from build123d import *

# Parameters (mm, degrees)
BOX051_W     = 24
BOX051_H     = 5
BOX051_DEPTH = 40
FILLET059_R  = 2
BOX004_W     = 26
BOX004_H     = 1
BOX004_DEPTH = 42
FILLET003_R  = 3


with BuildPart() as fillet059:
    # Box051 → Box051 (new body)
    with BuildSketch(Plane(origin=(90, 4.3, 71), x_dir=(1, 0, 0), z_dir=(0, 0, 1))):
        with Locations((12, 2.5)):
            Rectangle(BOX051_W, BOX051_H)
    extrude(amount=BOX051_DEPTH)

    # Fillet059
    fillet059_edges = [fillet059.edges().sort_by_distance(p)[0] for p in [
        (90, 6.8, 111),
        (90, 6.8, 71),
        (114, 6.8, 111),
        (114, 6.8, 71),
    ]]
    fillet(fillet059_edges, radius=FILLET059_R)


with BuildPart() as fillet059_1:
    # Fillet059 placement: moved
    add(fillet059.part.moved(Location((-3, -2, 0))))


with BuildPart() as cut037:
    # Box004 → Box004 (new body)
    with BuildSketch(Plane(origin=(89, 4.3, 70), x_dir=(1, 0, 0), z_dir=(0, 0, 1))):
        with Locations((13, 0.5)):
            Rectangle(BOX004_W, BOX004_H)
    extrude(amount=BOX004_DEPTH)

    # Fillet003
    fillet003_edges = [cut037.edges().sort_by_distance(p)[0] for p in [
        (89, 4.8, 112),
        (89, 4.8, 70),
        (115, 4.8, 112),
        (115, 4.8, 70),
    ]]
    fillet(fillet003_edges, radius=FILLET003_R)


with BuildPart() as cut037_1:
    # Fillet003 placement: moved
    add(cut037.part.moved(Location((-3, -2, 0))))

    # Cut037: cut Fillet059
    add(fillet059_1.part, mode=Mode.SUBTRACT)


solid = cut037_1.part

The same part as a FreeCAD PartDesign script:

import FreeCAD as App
import Part
import Sketcher

V = App.Vector
Q = App.Units.Quantity


def edges_at(feature, points):
    """Names of the edges that pass closest to the given points."""
    edges = feature.Shape.Edges
    near = lambda p: min(range(len(edges)), key=lambda i: edges[i].distToShape(Part.Vertex(*p))[0])
    return sorted({f"Edge{near(p) + 1}" for p in points})


def add_polygon(sketch, points):
    """Adds a closed chain of lines whose ends are joined by coincident constraints."""
    first, n = sketch.GeometryCount, len(points)
    for a, b in zip(points, points[1:] + points[:1]):
        sketch.addGeometry(Part.LineSegment(App.Vector(*a, 0), App.Vector(*b, 0)), False)
    for i in range(n):
        sketch.addConstraint(Sketcher.Constraint("Coincident", first + i, 2, first + (i + 1) % n, 1))

doc = App.newDocument("Part")
body = doc.addObject("PartDesign::Body", "Body")

# Sketch on XY plane
sketch1 = body.newObject("Sketcher::SketchObject", "Sketch")
sketch1.AttachmentSupport = (doc.getObject("XY_Plane"), [""])
sketch1.MapMode = "FlatFace"
sketch1.AttachmentOffset = App.Placement(V(0, 0, 71), App.Rotation())
add_polygon(sketch1, [(90, 9), (90, 4), (114, 4), (114, 9)])  # lines 0-3
sketch1.addConstraint([
    Sketcher.Constraint("Vertical", 0),
    Sketcher.Constraint("Horizontal", 1),
    Sketcher.Constraint("Vertical", 2),
    Sketcher.Constraint("Horizontal", 3),
    Sketcher.Constraint("DistanceX", 1, 1, 1, 2, Q("24 mm")),
    Sketcher.Constraint("DistanceY", 0, 2, 0, 1, Q("5 mm")),
    Sketcher.Constraint("DistanceX", -1, 1, 0, 2, Q("90 mm")),
    Sketcher.Constraint("DistanceY", -1, 1, 0, 2, Q("4.3 mm")),
])
pad1 = body.newObject("PartDesign::Pad", "Pad")
pad1.Profile = sketch1
pad1.Length = 40
doc.recompute()

fillet = body.newObject("PartDesign::Fillet", "Fillet")
fillet.Base = (pad1, edges_at(pad1, [
    (90, 6.8, 111),
    (90, 6.8, 71),
    (114, 6.8, 111),
    (114, 6.8, 71),
]))
fillet.Radius = 2
body2 = doc.addObject("PartDesign::Body", "Body001")
doc.recompute()

body.Placement = App.Placement(V(-3, -2, 0), App.Rotation(V(0, 0, 1), 0))
boolean = body2.newObject("PartDesign::Boolean", "Boolean")
boolean.Type = "Fuse"
boolean.addObjects([body])
body3 = doc.addObject("PartDesign::Body", "Body002")

# Sketch on XY plane
sketch2 = body3.newObject("Sketcher::SketchObject", "Sketch001")
sketch2.AttachmentSupport = (doc.getObject("XY_Plane002"), [""])
sketch2.MapMode = "FlatFace"
sketch2.AttachmentOffset = App.Placement(V(0, 0, 70), App.Rotation())
add_polygon(sketch2, [(89, 5.3), (89, 4.3), (115, 4.3), (115, 5.3)])  # lines 0-3
sketch2.addConstraint([
    Sketcher.Constraint("Vertical", 0),
    Sketcher.Constraint("Horizontal", 1),
    Sketcher.Constraint("Vertical", 2),
    Sketcher.Constraint("Horizontal", 3),
    Sketcher.Constraint("DistanceX", 1, 1, 1, 2, Q("26 mm")),
    Sketcher.Constraint("DistanceY", 0, 2, 0, 1, Q("1 mm")),
    Sketcher.Constraint("DistanceX", -1, 1, 0, 2, Q("89 mm")),
    Sketcher.Constraint("DistanceY", -1, 1, 0, 2, Q("4.3 mm")),
])
pad2 = body3.newObject("PartDesign::Pad", "Pad001")
pad2.Profile = sketch2
pad2.Length = 42
doc.recompute()

fillet2 = body3.newObject("PartDesign::Fillet", "Fillet001")
fillet2.Base = (pad2, edges_at(pad2, [
    (89, 4.8, 112),
    (89, 4.8, 70),
    (115, 4.8, 112),
    (115, 4.8, 70),
]))
fillet2.Radius = 3
body4 = doc.addObject("PartDesign::Body", "Body003")
doc.recompute()

body3.Placement = App.Placement(V(-3, -2, 0), App.Rotation(V(0, 0, 1), 0))
boolean2 = body4.newObject("PartDesign::Boolean", "Boolean001")
boolean2.Type = "Fuse"
boolean2.addObjects([body3])
doc.recompute()

boolean3 = body4.newObject("PartDesign::Boolean", "Boolean002")
boolean3.Type = "Cut"
boolean3.addObjects([body2])

doc.recompute()
